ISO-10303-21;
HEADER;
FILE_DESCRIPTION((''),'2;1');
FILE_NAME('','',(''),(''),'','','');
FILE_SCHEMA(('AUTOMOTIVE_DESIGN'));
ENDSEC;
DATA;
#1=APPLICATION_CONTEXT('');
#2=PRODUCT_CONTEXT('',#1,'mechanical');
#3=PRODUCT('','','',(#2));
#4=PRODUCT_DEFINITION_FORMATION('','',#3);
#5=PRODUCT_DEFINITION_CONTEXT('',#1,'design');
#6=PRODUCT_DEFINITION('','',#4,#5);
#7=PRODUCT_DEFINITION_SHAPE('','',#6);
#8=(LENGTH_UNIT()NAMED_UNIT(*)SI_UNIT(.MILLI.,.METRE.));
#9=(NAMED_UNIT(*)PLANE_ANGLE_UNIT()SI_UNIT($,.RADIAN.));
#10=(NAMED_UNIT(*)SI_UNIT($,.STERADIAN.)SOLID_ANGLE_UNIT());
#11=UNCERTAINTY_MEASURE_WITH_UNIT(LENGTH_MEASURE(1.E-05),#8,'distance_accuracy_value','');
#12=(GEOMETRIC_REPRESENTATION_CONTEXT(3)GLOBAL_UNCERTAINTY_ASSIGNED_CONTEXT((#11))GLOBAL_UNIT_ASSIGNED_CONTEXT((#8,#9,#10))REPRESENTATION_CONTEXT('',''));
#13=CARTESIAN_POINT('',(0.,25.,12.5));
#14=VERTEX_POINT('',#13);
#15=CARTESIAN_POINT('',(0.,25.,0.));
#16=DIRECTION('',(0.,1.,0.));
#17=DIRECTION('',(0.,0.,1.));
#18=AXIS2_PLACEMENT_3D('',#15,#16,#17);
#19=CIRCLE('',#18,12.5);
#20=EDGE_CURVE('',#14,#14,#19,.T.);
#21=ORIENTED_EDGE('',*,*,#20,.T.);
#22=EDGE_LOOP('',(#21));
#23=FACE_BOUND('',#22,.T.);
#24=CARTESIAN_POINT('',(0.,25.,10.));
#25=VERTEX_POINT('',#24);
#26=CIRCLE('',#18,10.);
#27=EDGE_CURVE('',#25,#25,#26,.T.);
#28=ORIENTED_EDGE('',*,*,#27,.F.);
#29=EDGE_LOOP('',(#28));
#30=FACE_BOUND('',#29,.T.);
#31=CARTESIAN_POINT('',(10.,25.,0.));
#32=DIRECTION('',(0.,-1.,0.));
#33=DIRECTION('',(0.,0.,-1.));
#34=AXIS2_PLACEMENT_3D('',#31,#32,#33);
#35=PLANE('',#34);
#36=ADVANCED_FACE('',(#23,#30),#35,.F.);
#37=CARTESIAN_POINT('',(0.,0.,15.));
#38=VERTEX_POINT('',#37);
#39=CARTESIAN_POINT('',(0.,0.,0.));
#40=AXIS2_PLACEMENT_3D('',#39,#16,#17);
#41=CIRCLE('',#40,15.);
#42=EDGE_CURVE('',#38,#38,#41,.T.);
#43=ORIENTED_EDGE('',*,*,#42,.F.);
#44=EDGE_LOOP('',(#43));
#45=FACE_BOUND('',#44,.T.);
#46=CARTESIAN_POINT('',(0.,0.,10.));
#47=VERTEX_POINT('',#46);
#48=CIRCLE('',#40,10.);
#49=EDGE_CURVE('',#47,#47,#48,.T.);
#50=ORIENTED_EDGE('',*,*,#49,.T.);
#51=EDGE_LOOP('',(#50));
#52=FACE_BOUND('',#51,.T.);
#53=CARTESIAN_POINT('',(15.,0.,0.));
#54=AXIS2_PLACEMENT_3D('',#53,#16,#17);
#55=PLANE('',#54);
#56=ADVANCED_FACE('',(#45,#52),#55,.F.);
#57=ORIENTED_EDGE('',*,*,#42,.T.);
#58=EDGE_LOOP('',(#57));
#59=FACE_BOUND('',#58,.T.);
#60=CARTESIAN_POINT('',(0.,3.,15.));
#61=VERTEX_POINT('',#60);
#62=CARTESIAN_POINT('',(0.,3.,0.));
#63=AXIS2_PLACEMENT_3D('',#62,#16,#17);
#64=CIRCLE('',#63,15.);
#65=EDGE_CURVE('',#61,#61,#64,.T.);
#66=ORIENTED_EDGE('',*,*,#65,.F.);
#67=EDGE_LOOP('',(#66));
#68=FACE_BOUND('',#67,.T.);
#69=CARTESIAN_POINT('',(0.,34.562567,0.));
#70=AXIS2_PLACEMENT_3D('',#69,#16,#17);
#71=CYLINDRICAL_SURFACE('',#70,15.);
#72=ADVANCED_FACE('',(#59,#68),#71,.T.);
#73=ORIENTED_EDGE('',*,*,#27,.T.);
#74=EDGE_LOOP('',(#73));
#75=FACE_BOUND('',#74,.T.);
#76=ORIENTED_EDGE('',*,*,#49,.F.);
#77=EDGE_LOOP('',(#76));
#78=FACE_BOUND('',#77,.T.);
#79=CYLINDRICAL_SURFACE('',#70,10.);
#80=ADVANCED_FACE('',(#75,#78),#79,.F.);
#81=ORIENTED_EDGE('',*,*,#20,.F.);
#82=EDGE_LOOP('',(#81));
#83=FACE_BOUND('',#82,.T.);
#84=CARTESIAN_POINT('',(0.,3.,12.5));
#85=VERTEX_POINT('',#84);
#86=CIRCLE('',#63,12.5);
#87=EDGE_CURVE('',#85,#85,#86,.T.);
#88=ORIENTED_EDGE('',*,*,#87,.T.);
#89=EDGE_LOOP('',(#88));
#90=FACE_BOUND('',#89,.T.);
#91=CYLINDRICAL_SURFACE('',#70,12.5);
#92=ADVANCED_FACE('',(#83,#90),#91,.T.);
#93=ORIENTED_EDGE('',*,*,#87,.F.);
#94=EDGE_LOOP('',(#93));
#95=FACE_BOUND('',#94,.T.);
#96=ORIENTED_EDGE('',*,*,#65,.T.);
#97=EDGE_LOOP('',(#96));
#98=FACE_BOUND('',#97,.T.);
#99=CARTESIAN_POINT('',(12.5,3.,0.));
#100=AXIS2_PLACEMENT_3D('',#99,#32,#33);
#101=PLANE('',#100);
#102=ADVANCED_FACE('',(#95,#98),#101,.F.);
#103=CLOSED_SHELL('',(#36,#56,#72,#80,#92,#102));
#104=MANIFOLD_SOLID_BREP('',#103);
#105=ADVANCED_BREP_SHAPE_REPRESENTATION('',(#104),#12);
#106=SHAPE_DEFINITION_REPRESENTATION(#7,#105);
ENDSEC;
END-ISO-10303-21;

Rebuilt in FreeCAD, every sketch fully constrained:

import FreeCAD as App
import Part
import Sketcher
from FreeCAD import Vector
Q = App.Units.Quantity

doc = App.newDocument("Part")
params = doc.addObject("Spreadsheet::Sheet", "Params")
for row, (alias, value) in enumerate([
    ("sketch1_width", "5 mm"),
    ("sketch1_height", "25 mm"),
    ("sketch1_height2", "3 mm"),
    ("revolution_angle", "360 deg"),
], start=1):
    params.set(f"A{row}", alias)
    params.set(f"B{row}", "=" + value)
    params.setAlias(f"B{row}", alias)

body = doc.addObject("PartDesign::Body", "Body")

# Sketch on XY plane
sketch1 = body.newObject("Sketcher::SketchObject", "Sketch")
sketch1.AttachmentSupport = (doc.getObject("XY_Plane"), [""])
sketch1.MapMode = "FlatFace"
sketch1.addGeometry([
    Part.LineSegment(Vector(12.5, 25, 0), Vector(10, 25, 0)),  # 0
    Part.LineSegment(Vector(10, 25, 0), Vector(10, 0, 0)),  # 1
    Part.LineSegment(Vector(10, 0, 0), Vector(15, 0, 0)),  # 2
    Part.LineSegment(Vector(15, 0, 0), Vector(15, 3, 0)),  # 3
    Part.LineSegment(Vector(15, 3, 0), Vector(12.5, 3, 0)),  # 4
    Part.LineSegment(Vector(12.5, 3, 0), Vector(12.5, 25, 0)),  # 5
], False)
sketch1.addConstraint([
    Sketcher.Constraint("Coincident", 0, 2, 1, 1),
    Sketcher.Constraint("Coincident", 1, 2, 2, 1),
    Sketcher.Constraint("Coincident", 2, 2, 3, 1),
    Sketcher.Constraint("Coincident", 3, 2, 4, 1),
    Sketcher.Constraint("Coincident", 4, 2, 5, 1),
    Sketcher.Constraint("Coincident", 5, 2, 0, 1),
    Sketcher.Constraint("Horizontal", 0),
    Sketcher.Constraint("Vertical", 1),
    Sketcher.Constraint("Horizontal", 2),
    Sketcher.Constraint("Vertical", 3),
    Sketcher.Constraint("Horizontal", 4),
    Sketcher.Constraint("Vertical", 5),
    Sketcher.Constraint("PointOnObject", 1, 2, -1),
    Sketcher.Constraint("Equal", 0, 4),
    Sketcher.Constraint("DistanceX", 2, 1, 2, 2, Q("5 mm")),
    Sketcher.Constraint("DistanceY", 1, 2, 1, 1, Q("25 mm")),
    Sketcher.Constraint("DistanceY", 3, 1, 3, 2, Q("3 mm")),
    Sketcher.Constraint("DistanceX", -1, 1, 0, 2, Q("10 mm")),
])
sketch1.setExpression("Constraints[14]", "Params.sketch1_width")
sketch1.setExpression("Constraints[15]", "Params.sketch1_height")
sketch1.setExpression("Constraints[16]", "Params.sketch1_height2")
revolution = body.newObject("PartDesign::Revolution", "Revolution")
revolution.Profile = sketch1
revolution.ReferenceAxis = (sketch1, ["V_Axis"])
revolution.setExpression("Angle", "Params.revolution_angle")

doc.recompute()
